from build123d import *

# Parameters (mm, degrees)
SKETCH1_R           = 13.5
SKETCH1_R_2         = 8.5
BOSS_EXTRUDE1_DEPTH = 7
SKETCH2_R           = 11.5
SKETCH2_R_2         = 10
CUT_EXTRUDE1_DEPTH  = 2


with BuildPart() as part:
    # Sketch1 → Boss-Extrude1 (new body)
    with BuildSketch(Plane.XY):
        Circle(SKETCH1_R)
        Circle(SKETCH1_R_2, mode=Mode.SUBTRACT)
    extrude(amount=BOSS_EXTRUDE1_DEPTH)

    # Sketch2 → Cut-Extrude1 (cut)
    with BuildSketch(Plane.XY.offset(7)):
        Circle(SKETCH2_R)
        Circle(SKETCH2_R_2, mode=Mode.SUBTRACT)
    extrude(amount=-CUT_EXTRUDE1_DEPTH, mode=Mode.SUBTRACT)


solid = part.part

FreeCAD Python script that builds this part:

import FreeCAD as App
import Part
import Sketcher

doc = App.newDocument("Part")
body = doc.addObject("PartDesign::Body", "Body")

# Sketch on XY plane
sketch1 = doc.addObject("Sketcher::SketchObject", "Sketch")
body.addObject(sketch1)
sketch1.AttachmentSupport = (doc.XY_Plane, [""])
sketch1.MapMode = "FlatFace"
sketch1.addGeometry(Part.Circle(App.Vector(0, 0, 0), App.Vector(0, 0, 1), 14), False)
sketch1.addGeometry(Part.Circle(App.Vector(0, 0, 0), App.Vector(0, 0, 1), 8), False)
sketch1.addConstraint(Sketcher.Constraint("Coincident", 0, 3, -1, 1))
sketch1.addConstraint(Sketcher.Constraint("Coincident", 1, 3, -1, 1))
sketch1.addConstraint(Sketcher.Constraint("Diameter", 0, 27.0))
sketch1.addConstraint(Sketcher.Constraint("Diameter", 1, 17.0))
pad1 = doc.addObject("PartDesign::Pad", "Pad")
body.addObject(pad1)
pad1.Profile = sketch1
pad1.Length = 7

# Sketch on XY plane
sketch2 = doc.addObject("Sketcher::SketchObject", "Sketch001")
body.addObject(sketch2)
sketch2.AttachmentSupport = (doc.XY_Plane, [""])
sketch2.MapMode = "FlatFace"
sketch2.AttachmentOffset = App.Placement(App.Vector(0, 0, 7), App.Rotation())
sketch2.addGeometry(Part.Circle(App.Vector(0, 0, 0), App.Vector(0, 0, 1), 12), False)
sketch2.addGeometry(Part.Circle(App.Vector(0, 0, 0), App.Vector(0, 0, 1), 10), False)
sketch2.addConstraint(Sketcher.Constraint("Coincident", 0, 3, -1, 1))
sketch2.addConstraint(Sketcher.Constraint("Coincident", 1, 3, -1, 1))
sketch2.addConstraint(Sketcher.Constraint("Diameter", 0, 23.0))
sketch2.addConstraint(Sketcher.Constraint("Diameter", 1, 20.0))
pocket1 = doc.addObject("PartDesign::Pocket", "Pocket")
body.addObject(pocket1)
pocket1.Profile = sketch2
pocket1.Length = 2

doc.recompute()
